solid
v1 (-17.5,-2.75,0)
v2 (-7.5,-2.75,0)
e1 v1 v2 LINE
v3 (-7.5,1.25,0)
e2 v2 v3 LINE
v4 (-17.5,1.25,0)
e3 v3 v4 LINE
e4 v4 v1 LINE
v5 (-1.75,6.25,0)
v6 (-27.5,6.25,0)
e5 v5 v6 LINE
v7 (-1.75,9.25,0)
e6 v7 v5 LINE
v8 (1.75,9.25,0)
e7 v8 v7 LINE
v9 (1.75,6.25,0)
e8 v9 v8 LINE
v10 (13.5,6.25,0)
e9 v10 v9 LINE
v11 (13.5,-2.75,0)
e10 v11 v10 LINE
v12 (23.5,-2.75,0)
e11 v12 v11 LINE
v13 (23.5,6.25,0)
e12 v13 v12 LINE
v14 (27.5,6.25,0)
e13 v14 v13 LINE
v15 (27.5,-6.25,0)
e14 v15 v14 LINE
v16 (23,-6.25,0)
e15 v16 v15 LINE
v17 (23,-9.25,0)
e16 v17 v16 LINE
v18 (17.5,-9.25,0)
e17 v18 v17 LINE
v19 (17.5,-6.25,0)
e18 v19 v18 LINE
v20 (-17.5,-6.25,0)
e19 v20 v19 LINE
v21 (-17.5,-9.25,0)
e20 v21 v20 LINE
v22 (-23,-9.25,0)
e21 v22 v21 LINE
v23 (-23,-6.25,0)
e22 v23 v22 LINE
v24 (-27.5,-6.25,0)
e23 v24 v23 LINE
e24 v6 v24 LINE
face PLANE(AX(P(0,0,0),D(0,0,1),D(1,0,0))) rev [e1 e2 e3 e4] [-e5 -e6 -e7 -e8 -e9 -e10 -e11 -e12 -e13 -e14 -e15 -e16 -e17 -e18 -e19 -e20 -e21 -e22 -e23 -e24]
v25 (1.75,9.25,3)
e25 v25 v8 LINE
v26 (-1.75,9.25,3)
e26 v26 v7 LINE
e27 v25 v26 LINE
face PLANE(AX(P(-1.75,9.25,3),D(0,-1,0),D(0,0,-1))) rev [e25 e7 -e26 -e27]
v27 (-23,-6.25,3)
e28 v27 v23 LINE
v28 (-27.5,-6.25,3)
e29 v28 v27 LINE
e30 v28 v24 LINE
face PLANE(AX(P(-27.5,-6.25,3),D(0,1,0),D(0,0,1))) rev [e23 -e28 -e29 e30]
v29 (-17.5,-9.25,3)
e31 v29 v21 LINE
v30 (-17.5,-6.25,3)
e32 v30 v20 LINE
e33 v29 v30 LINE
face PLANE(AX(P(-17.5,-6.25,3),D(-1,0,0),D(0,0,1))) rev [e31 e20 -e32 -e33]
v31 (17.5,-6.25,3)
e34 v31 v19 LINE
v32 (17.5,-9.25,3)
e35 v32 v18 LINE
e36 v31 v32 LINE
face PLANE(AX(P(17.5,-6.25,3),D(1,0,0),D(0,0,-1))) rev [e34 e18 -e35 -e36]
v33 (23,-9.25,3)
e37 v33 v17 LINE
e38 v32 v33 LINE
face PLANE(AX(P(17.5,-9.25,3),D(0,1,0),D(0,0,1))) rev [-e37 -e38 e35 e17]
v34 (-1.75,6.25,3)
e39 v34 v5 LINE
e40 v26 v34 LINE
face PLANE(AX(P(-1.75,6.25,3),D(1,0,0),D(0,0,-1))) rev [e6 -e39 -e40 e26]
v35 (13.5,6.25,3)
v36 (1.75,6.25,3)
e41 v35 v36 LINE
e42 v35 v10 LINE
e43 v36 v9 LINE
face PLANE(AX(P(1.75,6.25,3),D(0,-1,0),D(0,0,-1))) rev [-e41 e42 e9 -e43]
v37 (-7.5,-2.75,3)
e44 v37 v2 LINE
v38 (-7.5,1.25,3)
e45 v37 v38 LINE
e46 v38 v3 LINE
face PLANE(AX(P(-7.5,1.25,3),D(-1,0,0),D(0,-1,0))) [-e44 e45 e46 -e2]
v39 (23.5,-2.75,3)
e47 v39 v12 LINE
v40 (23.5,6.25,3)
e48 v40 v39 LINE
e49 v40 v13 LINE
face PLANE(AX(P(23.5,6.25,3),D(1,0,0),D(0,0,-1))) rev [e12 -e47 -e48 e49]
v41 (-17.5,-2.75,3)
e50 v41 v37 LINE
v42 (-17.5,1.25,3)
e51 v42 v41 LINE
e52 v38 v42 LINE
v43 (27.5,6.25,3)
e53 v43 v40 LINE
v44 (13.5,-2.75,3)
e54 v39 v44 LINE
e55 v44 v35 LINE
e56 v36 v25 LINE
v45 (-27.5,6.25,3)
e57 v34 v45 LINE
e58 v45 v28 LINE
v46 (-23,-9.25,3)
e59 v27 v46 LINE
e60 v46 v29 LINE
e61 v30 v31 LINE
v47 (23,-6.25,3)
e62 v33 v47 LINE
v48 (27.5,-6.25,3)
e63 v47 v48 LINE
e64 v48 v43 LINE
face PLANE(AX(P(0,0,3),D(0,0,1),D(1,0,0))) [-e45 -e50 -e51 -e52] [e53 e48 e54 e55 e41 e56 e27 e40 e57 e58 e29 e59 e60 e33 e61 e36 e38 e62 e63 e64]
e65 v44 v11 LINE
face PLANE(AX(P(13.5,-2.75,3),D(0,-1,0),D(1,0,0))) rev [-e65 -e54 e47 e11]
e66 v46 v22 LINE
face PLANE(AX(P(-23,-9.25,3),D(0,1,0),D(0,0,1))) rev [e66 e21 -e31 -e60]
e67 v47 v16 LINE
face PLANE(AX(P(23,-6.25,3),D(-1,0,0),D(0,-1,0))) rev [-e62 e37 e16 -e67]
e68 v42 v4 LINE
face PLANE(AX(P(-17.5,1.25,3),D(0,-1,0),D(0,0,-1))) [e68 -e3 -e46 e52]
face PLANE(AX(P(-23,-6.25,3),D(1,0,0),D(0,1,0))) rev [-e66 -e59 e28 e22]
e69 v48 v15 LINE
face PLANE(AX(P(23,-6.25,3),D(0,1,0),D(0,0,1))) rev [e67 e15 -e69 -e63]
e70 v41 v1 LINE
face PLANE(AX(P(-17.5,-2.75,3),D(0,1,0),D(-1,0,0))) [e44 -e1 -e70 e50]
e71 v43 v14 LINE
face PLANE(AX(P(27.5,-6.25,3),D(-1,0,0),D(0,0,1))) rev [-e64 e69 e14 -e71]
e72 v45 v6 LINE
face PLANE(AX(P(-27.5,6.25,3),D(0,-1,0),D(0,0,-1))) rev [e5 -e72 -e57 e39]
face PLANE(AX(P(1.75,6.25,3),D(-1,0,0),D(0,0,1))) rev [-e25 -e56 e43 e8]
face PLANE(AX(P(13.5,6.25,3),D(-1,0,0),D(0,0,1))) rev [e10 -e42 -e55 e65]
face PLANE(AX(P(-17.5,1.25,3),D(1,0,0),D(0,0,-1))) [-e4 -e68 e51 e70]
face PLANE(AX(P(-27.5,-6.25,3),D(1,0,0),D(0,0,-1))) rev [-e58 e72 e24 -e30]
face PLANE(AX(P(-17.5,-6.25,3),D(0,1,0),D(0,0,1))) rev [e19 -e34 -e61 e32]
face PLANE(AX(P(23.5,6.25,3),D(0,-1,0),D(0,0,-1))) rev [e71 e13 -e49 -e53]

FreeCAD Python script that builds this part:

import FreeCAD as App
import Part
import Sketcher

doc = App.newDocument("Part")
body = doc.addObject("PartDesign::Body", "Body")

sketch1 = doc.addObject("Sketcher::SketchObject", "Sketch")
body.addObject(sketch1)
sketch1.AttachmentSupport = (doc.XY_Plane, [""])
sketch1.MapMode = "FlatFace"
sketch1.addGeometry([
    Part.LineSegment(App.Vector(-17.5, -6.2, 0), App.Vector(17.5, -6.2, 0)),
    Part.LineSegment(App.Vector(17.5, -6.2, 0), App.Vector(17.5, -9.2, 0)),
    Part.LineSegment(App.Vector(17.5, -9.2, 0), App.Vector(23, -9.2, 0)),
    Part.LineSegment(App.Vector(23, -9.2, 0), App.Vector(23, -6.2, 0)),
    Part.LineSegment(App.Vector(23, -6.2, 0), App.Vector(27.5, -6.2, 0)),
    Part.LineSegment(App.Vector(27.5, -6.2, 0), App.Vector(27.5, 6.2, 0)),
    Part.LineSegment(App.Vector(27.5, 6.2, 0), App.Vector(23.5, 6.2, 0)),
    Part.LineSegment(App.Vector(23.5, 6.2, 0), App.Vector(23.5, -2.8, 0)),
    Part.LineSegment(App.Vector(23.5, -2.8, 0), App.Vector(13.5, -2.8, 0)),
    Part.LineSegment(App.Vector(13.5, -2.8, 0), App.Vector(13.5, 6.2, 0)),
    Part.LineSegment(App.Vector(13.5, 6.2, 0), App.Vector(1.8, 6.2, 0)),
    Part.LineSegment(App.Vector(1.8, 6.2, 0), App.Vector(1.8, 9.2, 0)),
    Part.LineSegment(App.Vector(1.8, 9.2, 0), App.Vector(-1.8, 9.2, 0)),
    Part.LineSegment(App.Vector(-1.8, 9.2, 0), App.Vector(-1.8, 6.2, 0)),
    Part.LineSegment(App.Vector(-1.8, 6.2, 0), App.Vector(-27.5, 6.2, 0)),
    Part.LineSegment(App.Vector(-27.5, 6.2, 0), App.Vector(-27.5, -6.2, 0)),
    Part.LineSegment(App.Vector(-27.5, -6.2, 0), App.Vector(-23, -6.2, 0)),
    Part.LineSegment(App.Vector(-23, -6.2, 0), App.Vector(-23, -9.2, 0)),
    Part.LineSegment(App.Vector(-23, -9.2, 0), App.Vector(-17.5, -9.2, 0)),
    Part.LineSegment(App.Vector(-17.5, -9.2, 0), App.Vector(-17.5, -6.2, 0)),
    Part.LineSegment(App.Vector(-7.5, -2.8, 0), App.Vector(-17.5, -2.8, 0)),
    Part.LineSegment(App.Vector(-17.5, -2.8, 0), App.Vector(-17.5, 1.2, 0)),
    Part.LineSegment(App.Vector(-17.5, 1.2, 0), App.Vector(-7.5, 1.2, 0)),
    Part.LineSegment(App.Vector(-7.5, 1.2, 0), App.Vector(-7.5, -2.8, 0)),
], False)
sketch1.addConstraint([
    Sketcher.Constraint("Coincident", 0, 2, 1, 1),
    Sketcher.Constraint("Coincident", 1, 2, 2, 1),
    Sketcher.Constraint("Coincident", 2, 2, 3, 1),
    Sketcher.Constraint("Coincident", 3, 2, 4, 1),
    Sketcher.Constraint("Coincident", 4, 2, 5, 1),
    Sketcher.Constraint("Coincident", 5, 2, 6, 1),
    Sketcher.Constraint("Coincident", 6, 2, 7, 1),
    Sketcher.Constraint("Coincident", 7, 2, 8, 1),
    Sketcher.Constraint("Coincident", 8, 2, 9, 1),
    Sketcher.Constraint("Coincident", 9, 2, 10, 1),
    Sketcher.Constraint("Coincident", 10, 2, 11, 1),
    Sketcher.Constraint("Coincident", 11, 2, 12, 1),
    Sketcher.Constraint("Coincident", 12, 2, 13, 1),
    Sketcher.Constraint("Coincident", 13, 2, 14, 1),
    Sketcher.Constraint("Coincident", 14, 2, 15, 1),
    Sketcher.Constraint("Coincident", 15, 2, 16, 1),
    Sketcher.Constraint("Coincident", 16, 2, 17, 1),
    Sketcher.Constraint("Coincident", 17, 2, 18, 1),
    Sketcher.Constraint("Coincident", 18, 2, 19, 1),
    Sketcher.Constraint("Coincident", 19, 2, 0, 1),
    Sketcher.Constraint("Coincident", 20, 2, 21, 1),
    Sketcher.Constraint("Coincident", 21, 2, 22, 1),
    Sketcher.Constraint("Coincident", 22, 2, 23, 1),
    Sketcher.Constraint("Coincident", 23, 2, 20, 1),
    Sketcher.Constraint("Horizontal", 0),
    Sketcher.Constraint("Vertical", 1),
    Sketcher.Constraint("Horizontal", 2),
    Sketcher.Constraint("Vertical", 3),
    Sketcher.Constraint("Horizontal", 4),
    Sketcher.Constraint("Vertical", 5),
    Sketcher.Constraint("Horizontal", 6),
    Sketcher.Constraint("Vertical", 7),
    Sketcher.Constraint("Horizontal", 8),
    Sketcher.Constraint("Vertical", 9),
    Sketcher.Constraint("Horizontal", 10),
    Sketcher.Constraint("Vertical", 11),
    Sketcher.Constraint("Horizontal", 12),
    Sketcher.Constraint("Vertical", 13),
    Sketcher.Constraint("Horizontal", 14),
    Sketcher.Constraint("Vertical", 15),
    Sketcher.Constraint("Horizontal", 16),
    Sketcher.Constraint("Vertical", 17),
    Sketcher.Constraint("Horizontal", 18),
    Sketcher.Constraint("Vertical", 19),
    Sketcher.Constraint("Horizontal", 20),
    Sketcher.Constraint("Vertical", 21),
    Sketcher.Constraint("Horizontal", 22),
    Sketcher.Constraint("Vertical", 23),
    Sketcher.Constraint("Symmetric", 4, 2, 14, 2, -1, 1),
    Sketcher.Constraint("Symmetric", 10, 2, 13, 2, -2),
    Sketcher.Constraint("Symmetric", 3, 2, 16, 2, -2),
    Sketcher.Constraint("Symmetric", 1, 2, 18, 2, -2),
    Sketcher.Constraint("Horizontal", 0, 2, 3, 2),
    Sketcher.Constraint("Horizontal", 6, 2, 9, 2),
    Sketcher.Constraint("Horizontal", 8, 2, 20, 2),
    Sketcher.Constraint("Vertical", 19, 2, 20, 2),
    Sketcher.Constraint("Equal", 8, 20),
    Sketcher.Constraint("Equal", 3, 11),
    Sketcher.Constraint("Equal", 6, 21),
    Sketcher.Constraint("DistanceX", 0, 1, 0, 2, 35.0),
    Sketcher.Constraint("DistanceX", 6, 2, 6, 1, 4.0),
    Sketcher.Constraint("DistanceX", 8, 2, 8, 1, 10.0),
    Sketcher.Constraint("DistanceY", 1, 2, 1, 1, 3.0),
    Sketcher.Constraint("DistanceY", 7, 2, 7, 1, 9.0),
    Sketcher.Constraint("DistanceX", 2, 1, 2, 2, 5.5),
    Sketcher.Constraint("DistanceX", 4, 1, 4, 2, 4.5),
    Sketcher.Constraint("DistanceX", 12, 2, 12, 1, 3.5),
    Sketcher.Constraint("DistanceY", 5, 1, 5, 2, 12.5),
])
pad1 = doc.addObject("PartDesign::Pad", "Pad")
body.addObject(pad1)
pad1.Profile = sketch1
pad1.Length = 3

doc.recompute()
